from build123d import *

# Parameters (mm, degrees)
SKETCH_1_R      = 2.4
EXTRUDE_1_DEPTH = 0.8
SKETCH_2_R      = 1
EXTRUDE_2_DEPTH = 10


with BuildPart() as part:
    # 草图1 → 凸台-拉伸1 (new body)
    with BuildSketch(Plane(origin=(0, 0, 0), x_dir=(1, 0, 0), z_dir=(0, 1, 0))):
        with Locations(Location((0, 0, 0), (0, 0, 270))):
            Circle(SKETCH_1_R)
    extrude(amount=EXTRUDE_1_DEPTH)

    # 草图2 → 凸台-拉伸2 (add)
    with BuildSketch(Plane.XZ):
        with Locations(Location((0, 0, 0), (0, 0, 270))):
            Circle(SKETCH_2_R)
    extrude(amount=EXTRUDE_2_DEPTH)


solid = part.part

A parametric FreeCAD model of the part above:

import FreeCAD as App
import Part
import Sketcher

V = App.Vector
Q = App.Units.Quantity

doc = App.newDocument("Part")
params = doc.addObject("Spreadsheet::Sheet", "Params")
for row, (alias, value) in enumerate([
    ("sketch1_diameter", "4.8 mm"),
    ("pad1_length", "0.8 mm"),
    ("sketch2_diameter", "2 mm"),
    ("pad2_length", "10 mm"),
], start=1):
    params.set(f"A{row}", alias)
    params.set(f"B{row}", "=" + value)
    params.setAlias(f"B{row}", alias)

body = doc.addObject("PartDesign::Body", "Body")

# Sketch on XZ plane
sketch1 = body.newObject("Sketcher::SketchObject", "Sketch")
sketch1.AttachmentSupport = (doc.getObject("XZ_Plane"), [""])
sketch1.MapMode = "FlatFace"
sketch1.addGeometry(Part.Circle(V(0, 0, 0), V(0, 0, 1), 2.4), False)
sketch1.addConstraint([
    Sketcher.Constraint("Coincident", 0, 3, -1, 1),
    Sketcher.Constraint("Diameter", 0, Q("4.8 mm")),
])
sketch1.setExpression("Constraints[1]", "Params.sketch1_diameter")
pad1 = body.newObject("PartDesign::Pad", "Pad")
pad1.Profile = sketch1
pad1.setExpression("Length", "Params.pad1_length")
pad1.Reversed = True

# Sketch on XZ plane
sketch2 = body.newObject("Sketcher::SketchObject", "Sketch001")
sketch2.AttachmentSupport = (doc.getObject("XZ_Plane"), [""])
sketch2.MapMode = "FlatFace"
sketch2.addGeometry(Part.Circle(V(0, 0, 0), V(0, 0, 1), 1), False)
sketch2.addConstraint([
    Sketcher.Constraint("Coincident", 0, 3, -1, 1),
    Sketcher.Constraint("Diameter", 0, Q("2 mm")),
])
sketch2.setExpression("Constraints[1]", "Params.sketch2_diameter")
pad2 = body.newObject("PartDesign::Pad", "Pad001")
pad2.Profile = sketch2
pad2.setExpression("Length", "Params.pad2_length")

doc.recompute()
